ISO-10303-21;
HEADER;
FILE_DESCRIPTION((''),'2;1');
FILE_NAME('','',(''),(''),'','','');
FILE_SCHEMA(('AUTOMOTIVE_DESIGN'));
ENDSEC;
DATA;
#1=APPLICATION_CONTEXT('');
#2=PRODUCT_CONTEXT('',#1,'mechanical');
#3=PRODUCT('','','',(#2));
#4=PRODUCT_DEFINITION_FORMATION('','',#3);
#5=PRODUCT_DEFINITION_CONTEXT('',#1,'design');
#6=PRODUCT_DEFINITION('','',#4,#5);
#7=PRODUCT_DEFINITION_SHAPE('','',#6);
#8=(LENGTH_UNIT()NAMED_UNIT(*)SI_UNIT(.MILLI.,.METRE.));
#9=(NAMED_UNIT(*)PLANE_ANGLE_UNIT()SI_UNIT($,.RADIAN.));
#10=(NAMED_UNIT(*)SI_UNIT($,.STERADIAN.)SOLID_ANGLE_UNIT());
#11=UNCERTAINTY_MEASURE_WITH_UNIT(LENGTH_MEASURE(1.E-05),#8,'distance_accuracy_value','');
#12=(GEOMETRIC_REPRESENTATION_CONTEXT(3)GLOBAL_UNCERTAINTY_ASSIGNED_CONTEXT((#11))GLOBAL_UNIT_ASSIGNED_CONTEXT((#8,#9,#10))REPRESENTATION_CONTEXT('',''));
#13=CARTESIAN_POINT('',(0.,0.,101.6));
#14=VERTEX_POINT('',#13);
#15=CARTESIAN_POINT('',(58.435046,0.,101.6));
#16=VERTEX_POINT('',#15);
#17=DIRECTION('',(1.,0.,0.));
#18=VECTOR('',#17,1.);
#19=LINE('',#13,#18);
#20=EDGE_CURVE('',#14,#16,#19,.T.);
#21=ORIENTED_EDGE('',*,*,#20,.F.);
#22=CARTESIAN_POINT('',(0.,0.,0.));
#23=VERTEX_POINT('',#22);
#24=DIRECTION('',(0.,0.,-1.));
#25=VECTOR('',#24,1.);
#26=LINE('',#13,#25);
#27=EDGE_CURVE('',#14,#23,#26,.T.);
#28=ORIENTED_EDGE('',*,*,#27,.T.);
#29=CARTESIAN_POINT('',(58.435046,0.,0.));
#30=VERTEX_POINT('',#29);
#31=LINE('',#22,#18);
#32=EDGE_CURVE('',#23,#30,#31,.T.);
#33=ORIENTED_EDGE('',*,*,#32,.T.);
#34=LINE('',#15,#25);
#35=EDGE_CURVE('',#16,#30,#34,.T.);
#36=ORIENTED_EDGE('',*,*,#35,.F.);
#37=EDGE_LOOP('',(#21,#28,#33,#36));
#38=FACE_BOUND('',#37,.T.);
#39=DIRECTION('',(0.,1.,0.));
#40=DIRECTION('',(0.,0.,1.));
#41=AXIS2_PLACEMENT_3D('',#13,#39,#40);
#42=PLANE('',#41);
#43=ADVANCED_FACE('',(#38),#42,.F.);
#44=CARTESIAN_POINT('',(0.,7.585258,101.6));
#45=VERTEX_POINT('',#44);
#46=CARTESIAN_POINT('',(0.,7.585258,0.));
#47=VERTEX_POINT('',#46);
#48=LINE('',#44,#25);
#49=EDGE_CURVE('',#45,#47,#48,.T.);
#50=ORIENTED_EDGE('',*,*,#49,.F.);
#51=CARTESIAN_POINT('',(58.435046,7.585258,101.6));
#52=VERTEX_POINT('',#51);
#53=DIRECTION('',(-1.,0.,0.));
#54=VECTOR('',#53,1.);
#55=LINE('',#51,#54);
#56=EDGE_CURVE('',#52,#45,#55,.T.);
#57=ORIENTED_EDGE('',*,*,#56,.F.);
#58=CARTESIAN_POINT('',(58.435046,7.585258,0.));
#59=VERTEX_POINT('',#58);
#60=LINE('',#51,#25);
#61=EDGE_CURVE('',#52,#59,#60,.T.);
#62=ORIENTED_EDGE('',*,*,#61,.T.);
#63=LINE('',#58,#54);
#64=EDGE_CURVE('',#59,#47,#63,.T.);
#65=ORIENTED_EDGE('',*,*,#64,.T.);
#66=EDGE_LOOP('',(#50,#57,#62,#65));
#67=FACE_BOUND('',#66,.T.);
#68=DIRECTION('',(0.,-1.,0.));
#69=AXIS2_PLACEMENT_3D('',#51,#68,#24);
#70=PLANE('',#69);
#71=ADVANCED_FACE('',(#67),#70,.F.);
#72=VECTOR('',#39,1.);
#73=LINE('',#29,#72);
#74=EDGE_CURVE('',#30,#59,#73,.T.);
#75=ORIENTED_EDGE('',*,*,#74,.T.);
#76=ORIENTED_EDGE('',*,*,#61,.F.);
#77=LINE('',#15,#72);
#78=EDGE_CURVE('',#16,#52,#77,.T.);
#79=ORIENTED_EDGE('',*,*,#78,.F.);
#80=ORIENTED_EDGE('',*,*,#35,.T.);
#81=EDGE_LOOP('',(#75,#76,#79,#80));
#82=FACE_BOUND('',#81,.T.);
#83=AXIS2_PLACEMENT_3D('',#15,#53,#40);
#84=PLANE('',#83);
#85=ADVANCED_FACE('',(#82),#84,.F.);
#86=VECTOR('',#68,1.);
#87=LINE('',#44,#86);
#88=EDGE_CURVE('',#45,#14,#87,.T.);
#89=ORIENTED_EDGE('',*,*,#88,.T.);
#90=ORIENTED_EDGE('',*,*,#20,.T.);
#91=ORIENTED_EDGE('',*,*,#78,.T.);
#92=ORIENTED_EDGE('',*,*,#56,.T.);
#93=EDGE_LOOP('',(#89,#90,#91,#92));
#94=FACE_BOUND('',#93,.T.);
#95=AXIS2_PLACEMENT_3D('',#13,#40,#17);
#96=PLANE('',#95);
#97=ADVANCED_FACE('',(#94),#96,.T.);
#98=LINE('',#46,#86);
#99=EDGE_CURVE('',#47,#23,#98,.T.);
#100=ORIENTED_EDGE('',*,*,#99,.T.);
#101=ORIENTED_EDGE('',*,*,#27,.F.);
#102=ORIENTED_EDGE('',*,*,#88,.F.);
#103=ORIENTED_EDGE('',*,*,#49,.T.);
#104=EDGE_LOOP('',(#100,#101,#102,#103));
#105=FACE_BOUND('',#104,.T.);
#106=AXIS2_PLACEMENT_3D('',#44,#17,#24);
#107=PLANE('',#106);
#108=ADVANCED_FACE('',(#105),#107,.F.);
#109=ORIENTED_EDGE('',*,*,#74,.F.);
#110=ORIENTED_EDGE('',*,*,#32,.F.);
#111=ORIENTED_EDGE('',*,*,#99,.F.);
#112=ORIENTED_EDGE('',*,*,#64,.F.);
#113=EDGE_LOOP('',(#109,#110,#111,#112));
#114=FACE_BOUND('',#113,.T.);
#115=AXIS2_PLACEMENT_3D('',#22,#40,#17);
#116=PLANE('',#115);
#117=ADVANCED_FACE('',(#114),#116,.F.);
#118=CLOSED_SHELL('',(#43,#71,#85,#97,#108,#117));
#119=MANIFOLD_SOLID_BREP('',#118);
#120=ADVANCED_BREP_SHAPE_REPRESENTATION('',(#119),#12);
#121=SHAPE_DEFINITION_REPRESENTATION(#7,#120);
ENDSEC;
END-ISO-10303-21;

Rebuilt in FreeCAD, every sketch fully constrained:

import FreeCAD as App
import Part
import Sketcher
Q = App.Units.Quantity

doc = App.newDocument("Part")
body = doc.addObject("PartDesign::Body", "Body")

sketch1 = doc.addObject("Sketcher::SketchObject", "Sketch")
body.addObject(sketch1)
sketch1.AttachmentSupport = (doc.XY_Plane, [""])
sketch1.MapMode = "FlatFace"
sketch1.addGeometry([
    Part.LineSegment(App.Vector(0, 8, 0), App.Vector(0, 0, 0)),
    Part.LineSegment(App.Vector(0, 0, 0), App.Vector(58, 0, 0)),
    Part.LineSegment(App.Vector(58, 0, 0), App.Vector(58, 8, 0)),
    Part.LineSegment(App.Vector(58, 8, 0), App.Vector(0, 8, 0)),
], False)
sketch1.addConstraint([
    Sketcher.Constraint("Coincident", 0, 2, 1, 1),
    Sketcher.Constraint("Coincident", 1, 2, 2, 1),
    Sketcher.Constraint("Coincident", 2, 2, 3, 1),
    Sketcher.Constraint("Coincident", 3, 2, 0, 1),
    Sketcher.Constraint("Vertical", 0),
    Sketcher.Constraint("Horizontal", 1),
    Sketcher.Constraint("Vertical", 2),
    Sketcher.Constraint("Horizontal", 3),
    Sketcher.Constraint("Coincident", 0, 2, -1, 1),
    Sketcher.Constraint("DistanceX", 1, 1, 1, 2, 58.435046),
    Sketcher.Constraint("DistanceY", 0, 2, 0, 1, 7.585258),
])
pad1 = doc.addObject("PartDesign::Pad", "Pad")
body.addObject(pad1)
pad1.Profile = sketch1
pad1.Length = Q("4 in")

doc.recompute()
